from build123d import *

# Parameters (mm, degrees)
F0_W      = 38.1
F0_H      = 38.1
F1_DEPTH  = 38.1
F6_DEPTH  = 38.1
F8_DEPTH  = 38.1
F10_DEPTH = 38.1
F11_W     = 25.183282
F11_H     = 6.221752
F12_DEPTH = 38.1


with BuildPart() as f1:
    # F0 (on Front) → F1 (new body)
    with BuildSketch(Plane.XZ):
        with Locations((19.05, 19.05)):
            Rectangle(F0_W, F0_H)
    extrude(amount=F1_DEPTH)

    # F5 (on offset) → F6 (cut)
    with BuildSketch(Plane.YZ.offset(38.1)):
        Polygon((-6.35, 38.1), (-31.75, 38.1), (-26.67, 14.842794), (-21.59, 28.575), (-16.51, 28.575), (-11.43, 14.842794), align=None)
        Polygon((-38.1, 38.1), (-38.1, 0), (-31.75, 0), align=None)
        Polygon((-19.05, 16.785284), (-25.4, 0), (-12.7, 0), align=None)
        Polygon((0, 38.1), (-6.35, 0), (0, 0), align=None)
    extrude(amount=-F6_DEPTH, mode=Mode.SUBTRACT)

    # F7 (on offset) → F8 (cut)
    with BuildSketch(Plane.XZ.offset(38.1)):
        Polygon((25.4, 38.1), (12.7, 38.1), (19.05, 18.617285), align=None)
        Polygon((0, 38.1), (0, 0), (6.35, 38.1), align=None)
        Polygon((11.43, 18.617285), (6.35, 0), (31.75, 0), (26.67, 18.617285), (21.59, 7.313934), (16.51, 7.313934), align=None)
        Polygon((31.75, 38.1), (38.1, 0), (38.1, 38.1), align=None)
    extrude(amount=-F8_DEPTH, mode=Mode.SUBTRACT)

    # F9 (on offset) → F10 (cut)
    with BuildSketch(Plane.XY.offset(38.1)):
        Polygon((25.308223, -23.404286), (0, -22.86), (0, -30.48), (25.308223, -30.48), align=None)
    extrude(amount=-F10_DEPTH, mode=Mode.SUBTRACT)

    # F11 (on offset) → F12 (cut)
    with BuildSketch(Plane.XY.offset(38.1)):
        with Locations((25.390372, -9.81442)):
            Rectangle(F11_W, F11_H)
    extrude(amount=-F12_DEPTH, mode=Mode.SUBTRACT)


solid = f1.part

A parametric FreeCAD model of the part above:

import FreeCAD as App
import Part
import Sketcher

V = App.Vector
Q = App.Units.Quantity

doc = App.newDocument("Part")
body = doc.addObject("PartDesign::Body", "Body")

sketch1 = doc.addObject("Sketcher::SketchObject", "Sketch")
body.addObject(sketch1)
sketch1.AttachmentSupport = (doc.XZ_Plane, [""])
sketch1.MapMode = "FlatFace"
sketch1.addGeometry(Part.LineSegment(V(0, 38, 0), V(0, 0, 0)), False)
sketch1.addGeometry(Part.LineSegment(V(0, 0, 0), V(38, 0, 0)), False)
sketch1.addGeometry(Part.LineSegment(V(38, 0, 0), V(38, 38, 0)), False)
sketch1.addGeometry(Part.LineSegment(V(38, 38, 0), V(0, 38, 0)), False)
sketch1.addConstraint(Sketcher.Constraint("Coincident", 0, 2, 1, 1))
sketch1.addConstraint(Sketcher.Constraint("Coincident", 1, 2, 2, 1))
sketch1.addConstraint(Sketcher.Constraint("Coincident", 2, 2, 3, 1))
sketch1.addConstraint(Sketcher.Constraint("Coincident", 3, 2, 0, 1))
sketch1.addConstraint(Sketcher.Constraint("Vertical", 0))
sketch1.addConstraint(Sketcher.Constraint("Horizontal", 1))
sketch1.addConstraint(Sketcher.Constraint("Vertical", 2))
sketch1.addConstraint(Sketcher.Constraint("Horizontal", 3))
sketch1.addConstraint(Sketcher.Constraint("Coincident", 0, 2, -1, 1))
sketch1.addConstraint(Sketcher.Constraint("Equal", 3, 0))
sketch1.addConstraint(Sketcher.Constraint("DistanceX", 1, 1, 1, 2, Q("1.5 in")))
pad1 = doc.addObject("PartDesign::Pad", "Pad")
body.addObject(pad1)
pad1.Profile = sketch1
pad1.Length = Q("1.5 in")

sketch2 = doc.addObject("Sketcher::SketchObject", "Sketch001")
body.addObject(sketch2)
sketch2.AttachmentSupport = (doc.YZ_Plane, [""])
sketch2.MapMode = "FlatFace"
sketch2.AttachmentOffset = App.Placement(V(0, 0, 1.5 * 25.4), App.Rotation())
sketch2.addGeometry(Part.LineSegment(V(-6, 38, 0), V(-32, 38, 0)), False)
sketch2.addGeometry(Part.LineSegment(V(-32, 38, 0), V(-27, 15, 0)), False)
sketch2.addGeometry(Part.LineSegment(V(-27, 15, 0), V(-22, 29, 0)), False)
sketch2.addGeometry(Part.LineSegment(V(-22, 29, 0), V(-17, 29, 0)), False)
sketch2.addGeometry(Part.LineSegment(V(-17, 29, 0), V(-11, 15, 0)), False)
sketch2.addGeometry(Part.LineSegment(V(-11, 15, 0), V(-6, 38, 0)), False)
sketch2.addGeometry(Part.LineSegment(V(-38, 38, 0), V(-38, 0, 0)), False)
sketch2.addGeometry(Part.LineSegment(V(-38, 0, 0), V(-32, 0, 0)), False)
sketch2.addGeometry(Part.LineSegment(V(-32, 0, 0), V(-38, 38, 0)), False)
sketch2.addGeometry(Part.LineSegment(V(-19, 17, 0), V(-25, 0, 0)), False)
sketch2.addGeometry(Part.LineSegment(V(-25, 0, 0), V(-13, 0, 0)), False)
sketch2.addGeometry(Part.LineSegment(V(-13, 0, 0), V(-19, 17, 0)), False)
sketch2.addGeometry(Part.LineSegment(V(0, 38, 0), V(-6, 0, 0)), False)
sketch2.addGeometry(Part.LineSegment(V(-6, 0, 0), V(0, 0, 0)), False)
sketch2.addGeometry(Part.LineSegment(V(0, 0, 0), V(0, 38, 0)), False)
sketch2.addConstraint(Sketcher.Constraint("Coincident", 0, 2, 1, 1))
sketch2.addConstraint(Sketcher.Constraint("Coincident", 1, 2, 2, 1))
sketch2.addConstraint(Sketcher.Constraint("Coincident", 2, 2, 3, 1))
sketch2.addConstraint(Sketcher.Constraint("Coincident", 3, 2, 4, 1))
sketch2.addConstraint(Sketcher.Constraint("Coincident", 4, 2, 5, 1))
sketch2.addConstraint(Sketcher.Constraint("Coincident", 5, 2, 0, 1))
sketch2.addConstraint(Sketcher.Constraint("Coincident", 6, 2, 7, 1))
sketch2.addConstraint(Sketcher.Constraint("Coincident", 7, 2, 8, 1))
sketch2.addConstraint(Sketcher.Constraint("Coincident", 8, 2, 6, 1))
sketch2.addConstraint(Sketcher.Constraint("Coincident", 9, 2, 10, 1))
sketch2.addConstraint(Sketcher.Constraint("Coincident", 10, 2, 11, 1))
sketch2.addConstraint(Sketcher.Constraint("Coincident", 11, 2, 9, 1))
sketch2.addConstraint(Sketcher.Constraint("Coincident", 12, 2, 13, 1))
sketch2.addConstraint(Sketcher.Constraint("Coincident", 13, 2, 14, 1))
sketch2.addConstraint(Sketcher.Constraint("Coincident", 14, 2, 12, 1))
sketch2.addConstraint(Sketcher.Constraint("Horizontal", 0))
sketch2.addConstraint(Sketcher.Constraint("Horizontal", 3))
sketch2.addConstraint(Sketcher.Constraint("Vertical", 6))
sketch2.addConstraint(Sketcher.Constraint("Horizontal", 7))
sketch2.addConstraint(Sketcher.Constraint("Horizontal", 10))
sketch2.addConstraint(Sketcher.Constraint("Horizontal", 13))
sketch2.addConstraint(Sketcher.Constraint("Vertical", 14))
sketch2.addConstraint(Sketcher.Constraint("Coincident", 13, 2, -1, 1))
sketch2.addConstraint(Sketcher.Constraint("PointOnObject", 6, 2, -1))
sketch2.addConstraint(Sketcher.Constraint("PointOnObject", 9, 2, -1))
sketch2.addConstraint(Sketcher.Constraint("Horizontal", 1, 2, 4, 2))
sketch2.addConstraint(Sketcher.Constraint("Horizontal", 5, 2, 8, 2))
sketch2.addConstraint(Sketcher.Constraint("Horizontal", 8, 2, 14, 2))
sketch2.addConstraint(Sketcher.Constraint("Vertical", 0, 2, 7, 2))
sketch2.addConstraint(Sketcher.Constraint("Vertical", 5, 2, 12, 2))
sketch2.addConstraint(Sketcher.Constraint("Equal", 7, 13))
sketch2.addConstraint(Sketcher.Constraint("Equal", 2, 4))
sketch2.addConstraint(Sketcher.Constraint("Equal", 1, 5))
sketch2.addConstraint(Sketcher.Constraint("Equal", 9, 11))
sketch2.addConstraint(Sketcher.Constraint("DistanceX", 0, 2, 0, 1, Q("1 in")))
sketch2.addConstraint(Sketcher.Constraint("DistanceX", 3, 1, 3, 2, Q("0.2 in")))
sketch2.addConstraint(Sketcher.Constraint("DistanceX", 10, 1, 10, 2, Q("0.5 in")))
sketch2.addConstraint(Sketcher.Constraint("DistanceY", 6, 2, 6, 1, Q("1.5 in")))
sketch2.addConstraint(Sketcher.Constraint("DistanceX", 9, 2, -1, 1, Q("1 in")))
sketch2.addConstraint(Sketcher.Constraint("DistanceX", 6, 2, 10, 2, Q("1 in")))
sketch2.addConstraint(Sketcher.Constraint("DistanceX", 0, 2, 1, 2, Q("0.2 in")))
sketch2.addConstraint(Sketcher.Constraint("DistanceY", -1, 1, 2, 2, Q("1.125 in")))
sketch2.addConstraint(Sketcher.Constraint("Distance", 9, Q("17.94626 mm")))
sketch2.addConstraint(Sketcher.Constraint("DistanceY", 1, 2, 11, 2, Q("1.94249 mm")))
pocket1 = doc.addObject("PartDesign::Pocket", "Pocket")
body.addObject(pocket1)
pocket1.Profile = sketch2
pocket1.Length = Q("1.5 in")

sketch3 = doc.addObject("Sketcher::SketchObject", "Sketch002")
body.addObject(sketch3)
sketch3.AttachmentSupport = (doc.XZ_Plane, [""])
sketch3.MapMode = "FlatFace"
sketch3.AttachmentOffset = App.Placement(V(0, 0, 1.5 * 25.4), App.Rotation())
sketch3.addGeometry(Part.LineSegment(V(25, 38, 0), V(13, 38, 0)), False)
sketch3.addGeometry(Part.LineSegment(V(13, 38, 0), V(19, 19, 0)), False)
sketch3.addGeometry(Part.LineSegment(V(19, 19, 0), V(25, 38, 0)), False)
sketch3.addGeometry(Part.LineSegment(V(0, 38, 0), V(0, 0, 0)), False)
sketch3.addGeometry(Part.LineSegment(V(0, 0, 0), V(6, 38, 0)), False)
sketch3.addGeometry(Part.LineSegment(V(6, 38, 0), V(0, 38, 0)), False)
sketch3.addGeometry(Part.LineSegment(V(11, 19, 0), V(6, 0, 0)), False)
sketch3.addGeometry(Part.LineSegment(V(6, 0, 0), V(32, 0, 0)), False)
sketch3.addGeometry(Part.LineSegment(V(32, 0, 0), V(27, 19, 0)), False)
sketch3.addGeometry(Part.LineSegment(V(27, 19, 0), V(22, 7, 0)), False)
sketch3.addGeometry(Part.LineSegment(V(22, 7, 0), V(17, 7, 0)), False)
sketch3.addGeometry(Part.LineSegment(V(17, 7, 0), V(11, 19, 0)), False)
sketch3.addGeometry(Part.LineSegment(V(32, 38, 0), V(38, 0, 0)), False)
sketch3.addGeometry(Part.LineSegment(V(38, 0, 0), V(38, 38, 0)), False)
sketch3.addGeometry(Part.LineSegment(V(38, 38, 0), V(32, 38, 0)), False)
sketch3.addConstraint(Sketcher.Constraint("Coincident", 0, 2, 1, 1))
sketch3.addConstraint(Sketcher.Constraint("Coincident", 1, 2, 2, 1))
sketch3.addConstraint(Sketcher.Constraint("Coincident", 2, 2, 0, 1))
sketch3.addConstraint(Sketcher.Constraint("Coincident", 3, 2, 4, 1))
sketch3.addConstraint(Sketcher.Constraint("Coincident", 4, 2, 5, 1))
sketch3.addConstraint(Sketcher.Constraint("Coincident", 5, 2, 3, 1))
sketch3.addConstraint(Sketcher.Constraint("Coincident", 6, 2, 7, 1))
sketch3.addConstraint(Sketcher.Constraint("Coincident", 7, 2, 8, 1))
sketch3.addConstraint(Sketcher.Constraint("Coincident", 8, 2, 9, 1))
sketch3.addConstraint(Sketcher.Constraint("Coincident", 9, 2, 10, 1))
sketch3.addConstraint(Sketcher.Constraint("Coincident", 10, 2, 11, 1))
sketch3.addConstraint(Sketcher.Constraint("Coincident", 11, 2, 6, 1))
sketch3.addConstraint(Sketcher.Constraint("Coincident", 12, 2, 13, 1))
sketch3.addConstraint(Sketcher.Constraint("Coincident", 13, 2, 14, 1))
sketch3.addConstraint(Sketcher.Constraint("Coincident", 14, 2, 12, 1))
sketch3.addConstraint(Sketcher.Constraint("Horizontal", 0))
sketch3.addConstraint(Sketcher.Constraint("Vertical", 3))
sketch3.addConstraint(Sketcher.Constraint("Horizontal", 5))
sketch3.addConstraint(Sketcher.Constraint("Horizontal", 7))
sketch3.addConstraint(Sketcher.Constraint("Horizontal", 10))
sketch3.addConstraint(Sketcher.Constraint("Vertical", 13))
sketch3.addConstraint(Sketcher.Constraint("Horizontal", 14))
sketch3.addConstraint(Sketcher.Constraint("Coincident", 3, 2, -1, 1))
sketch3.addConstraint(Sketcher.Constraint("PointOnObject", 6, 2, -1))
sketch3.addConstraint(Sketcher.Constraint("PointOnObject", 12, 2, -1))
sketch3.addConstraint(Sketcher.Constraint("Horizontal", 2, 2, 4, 2))
sketch3.addConstraint(Sketcher.Constraint("Horizontal", 1, 2, 8, 2))
sketch3.addConstraint(Sketcher.Constraint("Horizontal", 8, 2, 11, 2))
sketch3.addConstraint(Sketcher.Constraint("Horizontal", 5, 2, 13, 2))
sketch3.addConstraint(Sketcher.Constraint("Vertical", 4, 2, 6, 2))
sketch3.addConstraint(Sketcher.Constraint("Vertical", 7, 2, 14, 2))
sketch3.addConstraint(Sketcher.Constraint("Equal", 5, 14))
sketch3.addConstraint(Sketcher.Constraint("Equal", 1, 2))
sketch3.addConstraint(Sketcher.Constraint("Equal", 6, 8))
sketch3.addConstraint(Sketcher.Constraint("Equal", 9, 11))
sketch3.addConstraint(Sketcher.Constraint("DistanceX", 7, 1, 7, 2, Q("1 in")))
sketch3.addConstraint(Sketcher.Constraint("DistanceX", 0, 2, 0, 1, Q("0.5 in")))
sketch3.addConstraint(Sketcher.Constraint("DistanceX", 10, 2, 10, 1, Q("0.2 in")))
sketch3.addConstraint(Sketcher.Constraint("DistanceY", 3, 2, 3, 1, Q("1.5 in")))
sketch3.addConstraint(Sketcher.Constraint("DistanceX", -1, 1, 2, 2, Q("1 in")))
sketch3.addConstraint(Sketcher.Constraint("DistanceX", 0, 2, 13, 2, Q("1 in")))
sketch3.addConstraint(Sketcher.Constraint("DistanceX", 1, 2, 8, 2, Q("0.3 in")))
sketch3.addConstraint(Sketcher.Constraint("Distance", 1, Q("20.49143 mm")))
sketch3.addConstraint(Sketcher.Constraint("DistanceY", 9, 2, 1, 2, Q("11.303351 mm")))
pocket2 = doc.addObject("PartDesign::Pocket", "Pocket001")
body.addObject(pocket2)
pocket2.Profile = sketch3
pocket2.Length = Q("1.5 in")

sketch4 = doc.addObject("Sketcher::SketchObject", "Sketch003")
body.addObject(sketch4)
sketch4.AttachmentSupport = (doc.XY_Plane, [""])
sketch4.MapMode = "FlatFace"
sketch4.AttachmentOffset = App.Placement(V(0, 0, 1.5 * 25.4), App.Rotation())
sketch4.addGeometry(Part.LineSegment(V(25, -23, 0), V(0, -23, 0)), False)
sketch4.addGeometry(Part.LineSegment(V(0, -23, 0), V(0, -30, 0)), False)
sketch4.addGeometry(Part.LineSegment(V(0, -30, 0), V(25, -30, 0)), False)
sketch4.addGeometry(Part.LineSegment(V(25, -30, 0), V(25, -23, 0)), False)
sketch4.addConstraint(Sketcher.Constraint("Coincident", 0, 2, 1, 1))
sketch4.addConstraint(Sketcher.Constraint("Coincident", 1, 2, 2, 1))
sketch4.addConstraint(Sketcher.Constraint("Coincident", 2, 2, 3, 1))
sketch4.addConstraint(Sketcher.Constraint("Coincident", 3, 2, 0, 1))
sketch4.addConstraint(Sketcher.Constraint("Vertical", 1))
sketch4.addConstraint(Sketcher.Constraint("Horizontal", 2))
sketch4.addConstraint(Sketcher.Constraint("Vertical", 3))
sketch4.addConstraint(Sketcher.Constraint("PointOnObject", 0, 2, -2))
sketch4.addConstraint(Sketcher.Constraint("DistanceY", 1, 2, 1, 1, Q("0.3 in")))
sketch4.addConstraint(Sketcher.Constraint("DistanceY", 0, 2, -1, 1, Q("0.9 in")))
sketch4.addConstraint(Sketcher.Constraint("DistanceX", 2, 1, 2, 2, Q("25.308223 mm")))
sketch4.addConstraint(Sketcher.Constraint("DistanceY", 3, 1, 3, 2, Q("7.075714 mm")))
pocket3 = doc.addObject("PartDesign::Pocket", "Pocket002")
body.addObject(pocket3)
pocket3.Profile = sketch4
pocket3.Length = Q("1.5 in")

sketch5 = doc.addObject("Sketcher::SketchObject", "Sketch004")
body.addObject(sketch5)
sketch5.AttachmentSupport = (doc.XY_Plane, [""])
sketch5.MapMode = "FlatFace"
sketch5.AttachmentOffset = App.Placement(V(0, 0, 1.5 * 25.4), App.Rotation())
sketch5.addGeometry(Part.LineSegment(V(13, -7, 0), V(13, -13, 0)), False)
sketch5.addGeometry(Part.LineSegment(V(13, -13, 0), V(38, -13, 0)), False)
sketch5.addGeometry(Part.LineSegment(V(38, -13, 0), V(38, -7, 0)), False)
sketch5.addGeometry(Part.LineSegment(V(38, -7, 0), V(13, -7, 0)), False)
sketch5.addConstraint(Sketcher.Constraint("Coincident", 0, 2, 1, 1))
sketch5.addConstraint(Sketcher.Constraint("Coincident", 1, 2, 2, 1))
sketch5.addConstraint(Sketcher.Constraint("Coincident", 2, 2, 3, 1))
sketch5.addConstraint(Sketcher.Constraint("Coincident", 3, 2, 0, 1))
sketch5.addConstraint(Sketcher.Constraint("Vertical", 0))
sketch5.addConstraint(Sketcher.Constraint("Horizontal", 1))
sketch5.addConstraint(Sketcher.Constraint("Vertical", 2))
sketch5.addConstraint(Sketcher.Constraint("Horizontal", 3))
sketch5.addConstraint(Sketcher.Constraint("DistanceY", 0, 2, 0, 1, Q("6.221752 mm")))
sketch5.addConstraint(Sketcher.Constraint("DistanceX", 1, 1, 1, 2, Q("25.183282 mm")))
sketch5.addConstraint(Sketcher.Constraint("DistanceX", -1, 1, 0, 2, Q("12.798731 mm")))
sketch5.addConstraint(Sketcher.Constraint("DistanceY", 0, 2, -1, 1, Q("12.925296 mm")))
pocket4 = doc.addObject("PartDesign::Pocket", "Pocket003")
body.addObject(pocket4)
pocket4.Profile = sketch5
pocket4.Length = Q("1.5 in")

doc.recompute()
